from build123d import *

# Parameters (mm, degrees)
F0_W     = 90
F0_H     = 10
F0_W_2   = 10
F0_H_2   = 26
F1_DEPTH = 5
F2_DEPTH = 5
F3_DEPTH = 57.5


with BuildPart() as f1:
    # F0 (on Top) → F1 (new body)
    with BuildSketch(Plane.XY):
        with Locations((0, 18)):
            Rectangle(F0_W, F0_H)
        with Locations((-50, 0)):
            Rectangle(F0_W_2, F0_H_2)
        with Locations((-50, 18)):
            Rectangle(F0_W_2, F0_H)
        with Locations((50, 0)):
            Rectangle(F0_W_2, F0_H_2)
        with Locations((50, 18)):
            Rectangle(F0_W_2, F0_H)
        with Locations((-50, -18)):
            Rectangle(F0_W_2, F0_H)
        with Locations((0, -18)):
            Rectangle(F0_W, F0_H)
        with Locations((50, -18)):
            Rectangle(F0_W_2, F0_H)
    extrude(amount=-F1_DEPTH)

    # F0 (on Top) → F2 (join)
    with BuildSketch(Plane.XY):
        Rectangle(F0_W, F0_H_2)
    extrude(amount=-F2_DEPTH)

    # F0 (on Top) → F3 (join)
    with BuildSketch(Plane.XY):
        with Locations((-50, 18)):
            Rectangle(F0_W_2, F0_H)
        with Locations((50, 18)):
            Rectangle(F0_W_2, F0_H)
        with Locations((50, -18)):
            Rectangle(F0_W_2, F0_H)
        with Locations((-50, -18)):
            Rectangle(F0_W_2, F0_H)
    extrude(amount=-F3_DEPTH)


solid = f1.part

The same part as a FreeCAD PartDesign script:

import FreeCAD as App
import Part
import Sketcher
from FreeCAD import Vector
Q = App.Units.Quantity


def add_polygon(sketch, points):
    """Adds a closed chain of lines whose ends are joined by coincident constraints."""
    first, n = sketch.GeometryCount, len(points)
    for a, b in zip(points, points[1:] + points[:1]):
        sketch.addGeometry(Part.LineSegment(App.Vector(*a, 0), App.Vector(*b, 0)), False)
    for i in range(n):
        sketch.addConstraint(Sketcher.Constraint("Coincident", first + i, 2, first + (i + 1) % n, 1))

doc = App.newDocument("Part")
body = doc.addObject("PartDesign::Body", "Body")

sketch1 = body.newObject("Sketcher::SketchObject", "Sketch")
sketch1.AttachmentSupport = (doc.getObject("XY_Plane"), [""])
sketch1.MapMode = "FlatFace"
add_polygon(sketch1, [(-55, -23), (55, -23), (55, 23), (-55, 23)])
add_polygon(sketch1, [(45, 13), (45, -13), (-45, -13), (-45, 13)])
sketch1.addConstraint([
    Sketcher.Constraint("Horizontal", 0),
    Sketcher.Constraint("Vertical", 1),
    Sketcher.Constraint("Horizontal", 2),
    Sketcher.Constraint("Vertical", 3),
    Sketcher.Constraint("Vertical", 4),
    Sketcher.Constraint("Horizontal", 5),
    Sketcher.Constraint("Vertical", 6),
    Sketcher.Constraint("Horizontal", 7),
    Sketcher.Constraint("Symmetric", 0, 2, 2, 2, -1, 1),
    Sketcher.Constraint("Symmetric", 4, 2, 6, 2, -1, 1),
    Sketcher.Constraint("DistanceX", 0, 1, 0, 2, Q("110 mm")),
    Sketcher.Constraint("DistanceX", 5, 2, 5, 1, Q("90 mm")),
    Sketcher.Constraint("DistanceY", 1, 1, 1, 2, Q("46 mm")),
    Sketcher.Constraint("DistanceY", 4, 2, 4, 1, Q("26 mm")),
])
pad1 = body.newObject("PartDesign::Pad", "Pad")
pad1.Profile = sketch1
pad1.Length = 5
pad1.Reversed = True

sketch2 = body.newObject("Sketcher::SketchObject", "Sketch001")
sketch2.AttachmentSupport = (doc.getObject("XY_Plane"), [""])
sketch2.MapMode = "FlatFace"
add_polygon(sketch2, [(-45, 13), (-45, -13), (45, -13), (45, 13)])
sketch2.addConstraint([
    Sketcher.Constraint("Vertical", 0),
    Sketcher.Constraint("Horizontal", 1),
    Sketcher.Constraint("Vertical", 2),
    Sketcher.Constraint("Horizontal", 3),
    Sketcher.Constraint("Symmetric", 0, 2, 2, 2, -1, 1),
    Sketcher.Constraint("DistanceX", 1, 1, 1, 2, Q("90 mm")),
    Sketcher.Constraint("DistanceY", 0, 2, 0, 1, Q("26 mm")),
])
pad2 = body.newObject("PartDesign::Pad", "Pad001")
pad2.Profile = sketch2
pad2.Length = 5
pad2.Reversed = True

sketch3 = body.newObject("Sketcher::SketchObject", "Sketch002")
sketch3.AttachmentSupport = (doc.getObject("XY_Plane"), [""])
sketch3.MapMode = "FlatFace"
add_polygon(sketch3, [(-55, 23), (-55, 13), (-45, 13), (-45, 23)])
add_polygon(sketch3, [(45, 23), (45, 13), (55, 13), (55, 23)])
add_polygon(sketch3, [(45, -13), (45, -23), (55, -23), (55, -13)])
add_polygon(sketch3, [(-55, -13), (-55, -23), (-45, -23), (-45, -13)])
sketch3.addConstraint([
    Sketcher.Constraint("Vertical", 0),
    Sketcher.Constraint("Horizontal", 1),
    Sketcher.Constraint("Vertical", 2),
    Sketcher.Constraint("Horizontal", 3),
    Sketcher.Constraint("Vertical", 4),
    Sketcher.Constraint("Horizontal", 5),
    Sketcher.Constraint("Vertical", 6),
    Sketcher.Constraint("Horizontal", 7),
    Sketcher.Constraint("Vertical", 8),
    Sketcher.Constraint("Horizontal", 9),
    Sketcher.Constraint("Vertical", 10),
    Sketcher.Constraint("Horizontal", 11),
    Sketcher.Constraint("Vertical", 12),
    Sketcher.Constraint("Horizontal", 13),
    Sketcher.Constraint("Vertical", 14),
    Sketcher.Constraint("Horizontal", 15),
    Sketcher.Constraint("Symmetric", 2, 2, 8, 2, -1, 1),
    Sketcher.Constraint("Symmetric", 0, 2, 10, 2, -1, 1),
    Sketcher.Constraint("Symmetric", 6, 2, 12, 2, -1, 1),
    Sketcher.Constraint("Symmetric", 4, 2, 14, 2, -1, 1),
    Sketcher.Constraint("Symmetric", 1, 2, 4, 2, -2),
    Sketcher.Constraint("Symmetric", 3, 2, 6, 2, -2),
    Sketcher.Constraint("Equal", 15, 0),
    Sketcher.Constraint("DistanceX", 1, 1, 1, 2, Q("10 mm")),
    Sketcher.Constraint("DistanceX", 0, 2, -1, 1, Q("55 mm")),
    Sketcher.Constraint("DistanceY", -1, 1, 0, 2, Q("13 mm")),
])
pad3 = body.newObject("PartDesign::Pad", "Pad002")
pad3.Profile = sketch3
pad3.Length = 57.5
pad3.Reversed = True

doc.recompute()
